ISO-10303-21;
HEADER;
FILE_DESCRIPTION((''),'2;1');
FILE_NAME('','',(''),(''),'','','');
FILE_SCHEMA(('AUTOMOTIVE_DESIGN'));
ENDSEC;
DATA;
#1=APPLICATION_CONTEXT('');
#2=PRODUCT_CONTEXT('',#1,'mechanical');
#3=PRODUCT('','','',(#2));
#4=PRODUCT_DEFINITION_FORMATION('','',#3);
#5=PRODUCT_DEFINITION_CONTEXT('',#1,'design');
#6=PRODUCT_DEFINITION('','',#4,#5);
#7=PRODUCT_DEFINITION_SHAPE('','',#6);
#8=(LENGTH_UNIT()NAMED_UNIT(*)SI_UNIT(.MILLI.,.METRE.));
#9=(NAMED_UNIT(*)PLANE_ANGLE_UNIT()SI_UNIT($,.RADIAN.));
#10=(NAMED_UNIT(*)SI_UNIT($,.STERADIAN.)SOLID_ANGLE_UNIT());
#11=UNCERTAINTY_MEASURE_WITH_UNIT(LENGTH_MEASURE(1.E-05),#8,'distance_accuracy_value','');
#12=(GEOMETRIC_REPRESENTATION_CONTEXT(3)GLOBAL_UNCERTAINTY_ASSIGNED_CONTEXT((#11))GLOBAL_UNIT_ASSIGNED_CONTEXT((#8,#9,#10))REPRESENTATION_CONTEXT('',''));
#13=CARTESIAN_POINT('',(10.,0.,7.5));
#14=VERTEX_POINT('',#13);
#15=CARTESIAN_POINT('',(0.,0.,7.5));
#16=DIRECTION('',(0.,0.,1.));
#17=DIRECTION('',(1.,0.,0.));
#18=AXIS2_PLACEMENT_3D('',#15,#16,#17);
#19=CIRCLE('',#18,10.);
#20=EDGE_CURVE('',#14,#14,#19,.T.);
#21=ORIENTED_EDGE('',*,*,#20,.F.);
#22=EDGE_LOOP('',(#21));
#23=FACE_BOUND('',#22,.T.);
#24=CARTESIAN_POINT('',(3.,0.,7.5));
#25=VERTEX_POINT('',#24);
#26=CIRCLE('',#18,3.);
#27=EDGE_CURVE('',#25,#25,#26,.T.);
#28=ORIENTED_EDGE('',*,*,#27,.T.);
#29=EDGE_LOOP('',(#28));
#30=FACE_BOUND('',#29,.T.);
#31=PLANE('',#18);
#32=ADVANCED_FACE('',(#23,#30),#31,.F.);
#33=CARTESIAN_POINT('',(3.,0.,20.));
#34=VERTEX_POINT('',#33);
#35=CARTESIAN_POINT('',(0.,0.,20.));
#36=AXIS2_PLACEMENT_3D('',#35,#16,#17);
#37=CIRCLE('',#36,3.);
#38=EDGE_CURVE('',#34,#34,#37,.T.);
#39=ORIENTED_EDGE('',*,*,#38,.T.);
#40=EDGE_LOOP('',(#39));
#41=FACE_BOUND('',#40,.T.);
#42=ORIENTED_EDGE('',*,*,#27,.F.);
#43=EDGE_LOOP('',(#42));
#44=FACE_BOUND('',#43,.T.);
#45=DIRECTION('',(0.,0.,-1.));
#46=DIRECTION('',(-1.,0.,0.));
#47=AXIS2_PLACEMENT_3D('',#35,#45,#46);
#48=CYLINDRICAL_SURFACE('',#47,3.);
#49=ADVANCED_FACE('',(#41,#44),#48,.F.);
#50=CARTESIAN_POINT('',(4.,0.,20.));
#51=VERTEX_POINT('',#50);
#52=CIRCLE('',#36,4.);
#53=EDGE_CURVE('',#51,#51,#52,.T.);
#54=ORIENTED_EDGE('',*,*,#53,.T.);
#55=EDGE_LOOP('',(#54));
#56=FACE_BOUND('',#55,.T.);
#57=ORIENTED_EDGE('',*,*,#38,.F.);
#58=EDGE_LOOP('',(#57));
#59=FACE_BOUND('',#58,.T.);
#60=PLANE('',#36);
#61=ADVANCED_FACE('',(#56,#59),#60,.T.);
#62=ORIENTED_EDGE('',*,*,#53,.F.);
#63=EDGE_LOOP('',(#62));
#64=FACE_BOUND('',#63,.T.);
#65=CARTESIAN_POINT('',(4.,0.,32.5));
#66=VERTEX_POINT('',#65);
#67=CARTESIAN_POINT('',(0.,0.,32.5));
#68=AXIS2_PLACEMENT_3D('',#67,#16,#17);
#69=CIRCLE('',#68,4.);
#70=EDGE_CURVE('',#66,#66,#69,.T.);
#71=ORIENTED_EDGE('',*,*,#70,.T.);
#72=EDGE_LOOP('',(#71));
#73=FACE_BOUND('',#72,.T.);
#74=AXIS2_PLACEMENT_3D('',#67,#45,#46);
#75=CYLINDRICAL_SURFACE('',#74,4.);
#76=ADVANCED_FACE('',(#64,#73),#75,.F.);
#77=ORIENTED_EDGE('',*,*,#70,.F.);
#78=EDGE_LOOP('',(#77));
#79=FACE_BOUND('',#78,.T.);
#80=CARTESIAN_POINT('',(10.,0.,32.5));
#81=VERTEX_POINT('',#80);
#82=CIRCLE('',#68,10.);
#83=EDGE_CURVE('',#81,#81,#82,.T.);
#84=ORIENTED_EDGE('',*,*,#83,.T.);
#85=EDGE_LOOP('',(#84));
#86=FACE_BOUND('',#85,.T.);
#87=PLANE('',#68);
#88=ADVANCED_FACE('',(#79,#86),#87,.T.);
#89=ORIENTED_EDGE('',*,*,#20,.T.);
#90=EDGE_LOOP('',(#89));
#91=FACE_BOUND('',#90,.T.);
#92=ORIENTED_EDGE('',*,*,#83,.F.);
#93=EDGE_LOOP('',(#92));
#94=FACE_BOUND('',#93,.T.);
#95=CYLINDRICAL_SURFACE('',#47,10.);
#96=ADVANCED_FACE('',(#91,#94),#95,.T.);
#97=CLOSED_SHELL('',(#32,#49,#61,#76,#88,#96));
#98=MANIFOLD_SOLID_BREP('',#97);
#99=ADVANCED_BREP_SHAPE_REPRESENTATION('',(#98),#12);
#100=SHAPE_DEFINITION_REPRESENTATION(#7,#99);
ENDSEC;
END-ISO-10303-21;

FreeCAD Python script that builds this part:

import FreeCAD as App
import Part
import Sketcher

doc = App.newDocument("Part")
params = doc.addObject("Spreadsheet::Sheet", "Params")
for row, (alias, value) in enumerate([
    ("sketch1_diameter", "20 mm"),
    ("sketch1_diameter2", "6 mm"),
    ("pad1_length", "12.5 mm"),
    ("sketch2_diameter", "20 mm"),
    ("sketch2_diameter2", "8 mm"),
    ("pad2_length", "12.5 mm"),
], start=1):
    params.set(f"A{row}", alias)
    params.set(f"B{row}", "=" + value)
    params.setAlias(f"B{row}", alias)

body = doc.addObject("PartDesign::Body", "Body")

# Sketch on XY plane
sketch1 = body.newObject("Sketcher::SketchObject", "Sketch")
sketch1.AttachmentSupport = (doc.getObject("XY_Plane"), [""])
sketch1.MapMode = "FlatFace"
sketch1.AttachmentOffset = App.Placement(App.Vector(0, 0, 7.5), App.Rotation())
sketch1.addGeometry(Part.Circle(App.Vector(0, 0, 0), App.Vector(0, 0, 1), 10), False)
sketch1.addGeometry(Part.Circle(App.Vector(0, 0, 0), App.Vector(0, 0, 1), 3), False)
sketch1.addConstraint(Sketcher.Constraint("Coincident", 0, 3, -1, 1))
sketch1.addConstraint(Sketcher.Constraint("Coincident", 1, 3, -1, 1))
sketch1.addConstraint(Sketcher.Constraint("Diameter", 0, 20.0))
sketch1.addConstraint(Sketcher.Constraint("Diameter", 1, 6.0))
sketch1.setExpression("Constraints[2]", "Params.sketch1_diameter")
sketch1.setExpression("Constraints[3]", "Params.sketch1_diameter2")
pad1 = body.newObject("PartDesign::Pad", "Pad")
pad1.Profile = sketch1
pad1.setExpression("Length", "Params.pad1_length")

# Sketch on XY plane
sketch2 = body.newObject("Sketcher::SketchObject", "Sketch001")
sketch2.AttachmentSupport = (doc.getObject("XY_Plane"), [""])
sketch2.MapMode = "FlatFace"
sketch2.AttachmentOffset = App.Placement(App.Vector(0, 0, 20), App.Rotation())
sketch2.addGeometry(Part.Circle(App.Vector(0, 0, 0), App.Vector(0, 0, 1), 10), False)
sketch2.addGeometry(Part.Circle(App.Vector(0, 0, 0), App.Vector(0, 0, 1), 4), False)
sketch2.addConstraint(Sketcher.Constraint("Coincident", 0, 3, -1, 1))
sketch2.addConstraint(Sketcher.Constraint("Coincident", 1, 3, -1, 1))
sketch2.addConstraint(Sketcher.Constraint("Diameter", 0, 20.0))
sketch2.addConstraint(Sketcher.Constraint("Diameter", 1, 8.0))
sketch2.setExpression("Constraints[2]", "Params.sketch2_diameter")
sketch2.setExpression("Constraints[3]", "Params.sketch2_diameter2")
pad2 = body.newObject("PartDesign::Pad", "Pad001")
pad2.Profile = sketch2
pad2.setExpression("Length", "Params.pad2_length")

doc.recompute()
